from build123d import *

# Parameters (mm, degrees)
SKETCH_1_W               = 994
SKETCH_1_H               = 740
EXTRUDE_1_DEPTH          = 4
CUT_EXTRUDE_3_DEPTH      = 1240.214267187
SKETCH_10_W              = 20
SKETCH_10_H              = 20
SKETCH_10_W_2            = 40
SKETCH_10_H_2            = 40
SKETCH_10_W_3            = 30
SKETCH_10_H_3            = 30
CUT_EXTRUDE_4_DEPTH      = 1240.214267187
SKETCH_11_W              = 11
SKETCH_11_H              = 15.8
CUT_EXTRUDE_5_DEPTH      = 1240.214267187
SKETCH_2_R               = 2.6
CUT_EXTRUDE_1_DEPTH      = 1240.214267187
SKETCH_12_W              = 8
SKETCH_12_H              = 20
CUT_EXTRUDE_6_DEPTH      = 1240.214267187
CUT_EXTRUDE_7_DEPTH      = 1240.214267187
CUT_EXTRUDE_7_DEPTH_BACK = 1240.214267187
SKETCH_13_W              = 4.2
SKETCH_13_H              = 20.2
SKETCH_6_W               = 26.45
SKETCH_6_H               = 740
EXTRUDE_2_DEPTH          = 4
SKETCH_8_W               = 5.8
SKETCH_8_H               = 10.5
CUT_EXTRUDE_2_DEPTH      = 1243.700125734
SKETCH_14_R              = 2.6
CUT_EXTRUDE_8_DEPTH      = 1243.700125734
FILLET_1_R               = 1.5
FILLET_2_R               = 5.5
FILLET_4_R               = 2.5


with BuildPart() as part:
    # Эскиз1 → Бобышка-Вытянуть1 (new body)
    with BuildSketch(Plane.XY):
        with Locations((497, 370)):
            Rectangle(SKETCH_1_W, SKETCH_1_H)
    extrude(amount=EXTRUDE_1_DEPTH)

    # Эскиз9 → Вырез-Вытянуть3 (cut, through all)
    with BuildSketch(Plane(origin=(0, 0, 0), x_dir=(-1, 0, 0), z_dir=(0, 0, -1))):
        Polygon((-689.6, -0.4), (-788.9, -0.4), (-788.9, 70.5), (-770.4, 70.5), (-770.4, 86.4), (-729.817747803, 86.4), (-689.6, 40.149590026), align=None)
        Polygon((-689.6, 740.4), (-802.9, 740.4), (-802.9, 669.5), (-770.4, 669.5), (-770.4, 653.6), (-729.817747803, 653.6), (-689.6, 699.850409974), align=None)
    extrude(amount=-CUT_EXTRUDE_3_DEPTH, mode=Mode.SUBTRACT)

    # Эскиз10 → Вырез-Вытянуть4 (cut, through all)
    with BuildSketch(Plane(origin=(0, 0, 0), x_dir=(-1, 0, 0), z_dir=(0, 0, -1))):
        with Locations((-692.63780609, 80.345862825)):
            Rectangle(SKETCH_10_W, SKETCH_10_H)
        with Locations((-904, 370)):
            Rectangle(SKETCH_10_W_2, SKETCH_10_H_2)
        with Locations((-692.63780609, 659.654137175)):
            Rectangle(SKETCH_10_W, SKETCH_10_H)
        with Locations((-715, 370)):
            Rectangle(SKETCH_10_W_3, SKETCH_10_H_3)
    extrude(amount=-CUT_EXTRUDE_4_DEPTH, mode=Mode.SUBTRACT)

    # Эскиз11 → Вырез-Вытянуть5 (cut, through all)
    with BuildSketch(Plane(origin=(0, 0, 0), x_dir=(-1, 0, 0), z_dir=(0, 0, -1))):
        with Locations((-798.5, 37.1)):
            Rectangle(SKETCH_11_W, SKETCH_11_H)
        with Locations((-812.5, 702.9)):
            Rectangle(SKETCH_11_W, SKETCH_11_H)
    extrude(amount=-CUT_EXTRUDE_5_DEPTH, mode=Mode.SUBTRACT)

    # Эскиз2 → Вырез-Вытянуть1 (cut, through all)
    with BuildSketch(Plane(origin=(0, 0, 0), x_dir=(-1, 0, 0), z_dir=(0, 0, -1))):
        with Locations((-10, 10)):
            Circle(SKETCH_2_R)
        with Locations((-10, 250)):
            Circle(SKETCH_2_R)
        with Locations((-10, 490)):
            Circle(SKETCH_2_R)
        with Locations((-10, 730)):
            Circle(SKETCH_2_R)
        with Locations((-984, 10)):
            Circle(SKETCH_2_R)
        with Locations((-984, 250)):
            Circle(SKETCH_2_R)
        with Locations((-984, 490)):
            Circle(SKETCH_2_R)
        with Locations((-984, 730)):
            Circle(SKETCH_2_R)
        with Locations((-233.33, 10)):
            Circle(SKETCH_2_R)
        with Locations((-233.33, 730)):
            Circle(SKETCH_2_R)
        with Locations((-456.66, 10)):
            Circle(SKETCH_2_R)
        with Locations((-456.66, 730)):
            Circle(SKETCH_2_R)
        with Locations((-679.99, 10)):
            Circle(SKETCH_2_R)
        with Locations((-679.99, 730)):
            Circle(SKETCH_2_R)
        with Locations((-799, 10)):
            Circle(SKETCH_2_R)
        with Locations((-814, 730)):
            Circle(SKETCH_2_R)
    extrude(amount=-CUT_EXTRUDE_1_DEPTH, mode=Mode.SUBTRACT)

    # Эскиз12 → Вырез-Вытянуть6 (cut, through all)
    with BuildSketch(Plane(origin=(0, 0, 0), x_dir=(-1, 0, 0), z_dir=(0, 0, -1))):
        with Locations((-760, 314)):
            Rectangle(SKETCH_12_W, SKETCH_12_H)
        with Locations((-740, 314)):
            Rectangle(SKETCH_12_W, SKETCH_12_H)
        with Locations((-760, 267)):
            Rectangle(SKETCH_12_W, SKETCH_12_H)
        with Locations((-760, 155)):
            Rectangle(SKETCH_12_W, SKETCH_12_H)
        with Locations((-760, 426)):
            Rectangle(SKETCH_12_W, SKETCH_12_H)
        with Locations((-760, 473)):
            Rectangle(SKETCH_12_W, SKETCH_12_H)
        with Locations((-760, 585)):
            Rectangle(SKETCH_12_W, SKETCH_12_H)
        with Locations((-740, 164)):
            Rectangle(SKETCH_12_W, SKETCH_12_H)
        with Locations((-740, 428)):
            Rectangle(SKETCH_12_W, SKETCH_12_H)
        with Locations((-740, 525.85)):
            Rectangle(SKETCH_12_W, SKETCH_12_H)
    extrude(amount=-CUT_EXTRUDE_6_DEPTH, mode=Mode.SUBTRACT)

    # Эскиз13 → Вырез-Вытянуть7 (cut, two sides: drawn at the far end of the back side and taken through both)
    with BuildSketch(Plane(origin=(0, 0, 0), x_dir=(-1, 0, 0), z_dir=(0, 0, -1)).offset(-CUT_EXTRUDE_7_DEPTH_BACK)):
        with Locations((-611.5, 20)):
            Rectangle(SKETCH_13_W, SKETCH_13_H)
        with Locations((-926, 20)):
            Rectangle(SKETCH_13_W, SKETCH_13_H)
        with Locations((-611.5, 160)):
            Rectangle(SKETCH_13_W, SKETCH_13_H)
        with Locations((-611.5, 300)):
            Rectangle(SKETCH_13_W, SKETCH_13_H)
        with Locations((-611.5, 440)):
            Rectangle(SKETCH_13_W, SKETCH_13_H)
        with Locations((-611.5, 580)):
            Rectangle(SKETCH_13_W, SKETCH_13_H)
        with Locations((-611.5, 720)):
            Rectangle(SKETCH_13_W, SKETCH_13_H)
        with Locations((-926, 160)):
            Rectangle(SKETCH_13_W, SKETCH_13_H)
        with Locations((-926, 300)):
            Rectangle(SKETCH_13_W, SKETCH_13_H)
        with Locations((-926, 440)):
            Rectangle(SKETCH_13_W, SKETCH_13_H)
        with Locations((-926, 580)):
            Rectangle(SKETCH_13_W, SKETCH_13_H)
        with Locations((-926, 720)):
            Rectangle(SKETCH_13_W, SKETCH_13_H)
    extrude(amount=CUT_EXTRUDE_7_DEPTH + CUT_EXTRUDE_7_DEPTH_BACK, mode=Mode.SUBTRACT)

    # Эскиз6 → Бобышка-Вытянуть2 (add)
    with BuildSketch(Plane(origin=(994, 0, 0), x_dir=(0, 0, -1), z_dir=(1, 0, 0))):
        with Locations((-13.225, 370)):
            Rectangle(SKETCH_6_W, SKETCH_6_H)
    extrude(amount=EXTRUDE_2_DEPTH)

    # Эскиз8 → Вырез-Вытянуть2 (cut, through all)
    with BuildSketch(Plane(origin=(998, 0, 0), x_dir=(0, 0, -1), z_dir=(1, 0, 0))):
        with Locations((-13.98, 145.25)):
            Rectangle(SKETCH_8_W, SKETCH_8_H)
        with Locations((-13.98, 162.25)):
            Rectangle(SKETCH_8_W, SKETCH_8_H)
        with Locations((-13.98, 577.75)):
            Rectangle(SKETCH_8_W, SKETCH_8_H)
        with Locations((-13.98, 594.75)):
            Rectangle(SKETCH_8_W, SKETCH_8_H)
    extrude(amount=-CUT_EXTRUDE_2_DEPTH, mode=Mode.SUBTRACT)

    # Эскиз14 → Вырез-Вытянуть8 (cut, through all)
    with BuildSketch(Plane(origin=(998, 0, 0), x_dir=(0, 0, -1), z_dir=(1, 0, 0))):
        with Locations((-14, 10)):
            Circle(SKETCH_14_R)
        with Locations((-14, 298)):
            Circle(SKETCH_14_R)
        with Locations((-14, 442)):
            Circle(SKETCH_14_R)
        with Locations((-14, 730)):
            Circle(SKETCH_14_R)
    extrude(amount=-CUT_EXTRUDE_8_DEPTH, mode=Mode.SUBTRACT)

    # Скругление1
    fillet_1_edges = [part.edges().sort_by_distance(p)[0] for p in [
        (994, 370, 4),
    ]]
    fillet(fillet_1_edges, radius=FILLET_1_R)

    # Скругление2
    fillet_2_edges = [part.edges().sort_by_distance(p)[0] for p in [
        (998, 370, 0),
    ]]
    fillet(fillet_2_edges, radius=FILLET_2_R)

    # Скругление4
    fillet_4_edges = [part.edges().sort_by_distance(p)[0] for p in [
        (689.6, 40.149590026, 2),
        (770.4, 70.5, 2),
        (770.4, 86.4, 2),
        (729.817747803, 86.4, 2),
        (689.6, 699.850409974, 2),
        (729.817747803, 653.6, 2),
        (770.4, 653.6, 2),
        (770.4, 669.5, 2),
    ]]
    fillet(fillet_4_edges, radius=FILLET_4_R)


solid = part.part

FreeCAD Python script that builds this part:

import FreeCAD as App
import Part
import Sketcher
Q = App.Units.Quantity


def edges_at(feature, points):
    """Names of the edges that pass closest to the given points."""
    edges = feature.Shape.Edges
    near = lambda p: min(range(len(edges)), key=lambda i: edges[i].distToShape(Part.Vertex(*p))[0])
    return sorted({f"Edge{near(p) + 1}" for p in points})

doc = App.newDocument("Part")
body = doc.addObject("PartDesign::Body", "Body")

sketch1 = body.newObject("Sketcher::SketchObject", "Sketch")
sketch1.AttachmentSupport = (doc.getObject("XY_Plane"), [""])
sketch1.MapMode = "FlatFace"
sketch1.addGeometry([
    Part.LineSegment(App.Vector(0, 740, 0), App.Vector(0, 0, 0)),
    Part.LineSegment(App.Vector(0, 0, 0), App.Vector(994, 0, 0)),
    Part.LineSegment(App.Vector(994, 0, 0), App.Vector(994, 740, 0)),
    Part.LineSegment(App.Vector(994, 740, 0), App.Vector(0, 740, 0)),
], False)
sketch1.addConstraint([
    Sketcher.Constraint("Coincident", 0, 2, 1, 1),
    Sketcher.Constraint("Coincident", 1, 2, 2, 1),
    Sketcher.Constraint("Coincident", 2, 2, 3, 1),
    Sketcher.Constraint("Coincident", 3, 2, 0, 1),
    Sketcher.Constraint("Vertical", 0),
    Sketcher.Constraint("Horizontal", 1),
    Sketcher.Constraint("Vertical", 2),
    Sketcher.Constraint("Horizontal", 3),
    Sketcher.Constraint("Coincident", 0, 2, -1, 1),
    Sketcher.Constraint("DistanceX", 1, 1, 1, 2, Q("994 mm")),
    Sketcher.Constraint("DistanceY", 0, 2, 0, 1, Q("740 mm")),
])
pad1 = body.newObject("PartDesign::Pad", "Pad")
pad1.Profile = sketch1
pad1.Length = 4

sketch2 = body.newObject("Sketcher::SketchObject", "Sketch001")
sketch2.AttachmentSupport = (doc.getObject("XY_Plane"), [""])
sketch2.MapMode = "FlatFace"
sketch2.addGeometry([
    Part.LineSegment(App.Vector(789, 0, 0), App.Vector(690, 0, 0)),
    Part.LineSegment(App.Vector(690, 0, 0), App.Vector(690, 40, 0)),
    Part.LineSegment(App.Vector(690, 40, 0), App.Vector(730, 86, 0)),
    Part.LineSegment(App.Vector(730, 86, 0), App.Vector(770, 86, 0)),
    Part.LineSegment(App.Vector(770, 86, 0), App.Vector(770, 70, 0)),
    Part.LineSegment(App.Vector(770, 70, 0), App.Vector(789, 70, 0)),
    Part.LineSegment(App.Vector(789, 70, 0), App.Vector(789, 0, 0)),
    Part.LineSegment(App.Vector(690, 740, 0), App.Vector(803, 740, 0)),
    Part.LineSegment(App.Vector(803, 740, 0), App.Vector(803, 670, 0)),
    Part.LineSegment(App.Vector(803, 670, 0), App.Vector(770, 670, 0)),
    Part.LineSegment(App.Vector(770, 670, 0), App.Vector(770, 654, 0)),
    Part.LineSegment(App.Vector(770, 654, 0), App.Vector(730, 654, 0)),
    Part.LineSegment(App.Vector(730, 654, 0), App.Vector(690, 700, 0)),
    Part.LineSegment(App.Vector(690, 700, 0), App.Vector(690, 740, 0)),
], False)
sketch2.addConstraint([
    Sketcher.Constraint("Coincident", 0, 2, 1, 1),
    Sketcher.Constraint("Coincident", 1, 2, 2, 1),
    Sketcher.Constraint("Coincident", 2, 2, 3, 1),
    Sketcher.Constraint("Coincident", 3, 2, 4, 1),
    Sketcher.Constraint("Coincident", 4, 2, 5, 1),
    Sketcher.Constraint("Coincident", 5, 2, 6, 1),
    Sketcher.Constraint("Coincident", 6, 2, 0, 1),
    Sketcher.Constraint("Coincident", 7, 2, 8, 1),
    Sketcher.Constraint("Coincident", 8, 2, 9, 1),
    Sketcher.Constraint("Coincident", 9, 2, 10, 1),
    Sketcher.Constraint("Coincident", 10, 2, 11, 1),
    Sketcher.Constraint("Coincident", 11, 2, 12, 1),
    Sketcher.Constraint("Coincident", 12, 2, 13, 1),
    Sketcher.Constraint("Coincident", 13, 2, 7, 1),
    Sketcher.Constraint("Horizontal", 0),
    Sketcher.Constraint("Vertical", 1),
    Sketcher.Constraint("Horizontal", 3),
    Sketcher.Constraint("Vertical", 4),
    Sketcher.Constraint("Horizontal", 5),
    Sketcher.Constraint("Vertical", 6),
    Sketcher.Constraint("Horizontal", 7),
    Sketcher.Constraint("Vertical", 8),
    Sketcher.Constraint("Horizontal", 9),
    Sketcher.Constraint("Vertical", 10),
    Sketcher.Constraint("Horizontal", 11),
    Sketcher.Constraint("Vertical", 13),
    Sketcher.Constraint("Vertical", 4, 2, 9, 2),
    Sketcher.Constraint("Vertical", 2, 2, 11, 2),
    Sketcher.Constraint("Vertical", 1, 2, 12, 2),
    Sketcher.Constraint("Equal", 6, 8),
    Sketcher.Constraint("Equal", 4, 10),
    Sketcher.Constraint("Equal", 1, 13),
    Sketcher.Constraint("DistanceX", 0, 2, 0, 1, Q("99.3 mm")),
    Sketcher.Constraint("DistanceX", 5, 1, 5, 2, Q("18.5 mm")),
    Sketcher.Constraint("DistanceX", 7, 1, 7, 2, Q("113.3 mm")),
    Sketcher.Constraint("DistanceY", 4, 2, 4, 1, Q("15.9 mm")),
    Sketcher.Constraint("DistanceY", 6, 2, 6, 1, Q("70.9 mm")),
    Sketcher.Constraint("DistanceY", 3, 2, 7, 2, Q("654 mm")),
    Sketcher.Constraint("DistanceX", -1, 1, 0, 2, Q("689.6 mm")),
    Sketcher.Constraint("DistanceY", 0, 2, -1, 1, Q("0.4 mm")),
    Sketcher.Constraint("DistanceY", 1, 1, 1, 2, Q("40.54959 mm")),
    Sketcher.Constraint("DistanceX", 3, 1, 3, 2, Q("40.582252 mm")),
])
pocket1 = body.newObject("PartDesign::Pocket", "Pocket")
pocket1.Profile = sketch2
pocket1.Type = "ThroughAll"
pocket1.Reversed = True

sketch3 = body.newObject("Sketcher::SketchObject", "Sketch002")
sketch3.AttachmentSupport = (doc.getObject("XY_Plane"), [""])
sketch3.MapMode = "FlatFace"
sketch3.addGeometry([
    Part.LineSegment(App.Vector(703, 90, 0), App.Vector(703, 70, 0)),
    Part.LineSegment(App.Vector(703, 70, 0), App.Vector(683, 70, 0)),
    Part.LineSegment(App.Vector(683, 70, 0), App.Vector(683, 90, 0)),
    Part.LineSegment(App.Vector(683, 90, 0), App.Vector(703, 90, 0)),
    Part.LineSegment(App.Vector(924, 390, 0), App.Vector(924, 350, 0)),
    Part.LineSegment(App.Vector(924, 350, 0), App.Vector(884, 350, 0)),
    Part.LineSegment(App.Vector(884, 350, 0), App.Vector(884, 390, 0)),
    Part.LineSegment(App.Vector(884, 390, 0), App.Vector(924, 390, 0)),
    Part.LineSegment(App.Vector(703, 670, 0), App.Vector(703, 650, 0)),
    Part.LineSegment(App.Vector(703, 650, 0), App.Vector(683, 650, 0)),
    Part.LineSegment(App.Vector(683, 650, 0), App.Vector(683, 670, 0)),
    Part.LineSegment(App.Vector(683, 670, 0), App.Vector(703, 670, 0)),
    Part.LineSegment(App.Vector(730, 385, 0), App.Vector(730, 355, 0)),
    Part.LineSegment(App.Vector(730, 355, 0), App.Vector(700, 355, 0)),
    Part.LineSegment(App.Vector(700, 355, 0), App.Vector(700, 385, 0)),
    Part.LineSegment(App.Vector(700, 385, 0), App.Vector(730, 385, 0)),
], False)
sketch3.addConstraint([
    Sketcher.Constraint("Coincident", 0, 2, 1, 1),
    Sketcher.Constraint("Coincident", 1, 2, 2, 1),
    Sketcher.Constraint("Coincident", 2, 2, 3, 1),
    Sketcher.Constraint("Coincident", 3, 2, 0, 1),
    Sketcher.Constraint("Coincident", 4, 2, 5, 1),
    Sketcher.Constraint("Coincident", 5, 2, 6, 1),
    Sketcher.Constraint("Coincident", 6, 2, 7, 1),
    Sketcher.Constraint("Coincident", 7, 2, 4, 1),
    Sketcher.Constraint("Coincident", 8, 2, 9, 1),
    Sketcher.Constraint("Coincident", 9, 2, 10, 1),
    Sketcher.Constraint("Coincident", 10, 2, 11, 1),
    Sketcher.Constraint("Coincident", 11, 2, 8, 1),
    Sketcher.Constraint("Coincident", 12, 2, 13, 1),
    Sketcher.Constraint("Coincident", 13, 2, 14, 1),
    Sketcher.Constraint("Coincident", 14, 2, 15, 1),
    Sketcher.Constraint("Coincident", 15, 2, 12, 1),
    Sketcher.Constraint("Vertical", 0),
    Sketcher.Constraint("Horizontal", 1),
    Sketcher.Constraint("Vertical", 2),
    Sketcher.Constraint("Horizontal", 3),
    Sketcher.Constraint("Vertical", 4),
    Sketcher.Constraint("Horizontal", 5),
    Sketcher.Constraint("Vertical", 6),
    Sketcher.Constraint("Horizontal", 7),
    Sketcher.Constraint("Vertical", 8),
    Sketcher.Constraint("Horizontal", 9),
    Sketcher.Constraint("Vertical", 10),
    Sketcher.Constraint("Horizontal", 11),
    Sketcher.Constraint("Vertical", 12),
    Sketcher.Constraint("Horizontal", 13),
    Sketcher.Constraint("Vertical", 14),
    Sketcher.Constraint("Horizontal", 15),
    Sketcher.Constraint("Vertical", 3, 2, 8, 2),
    Sketcher.Constraint("Vertical", 2, 2, 9, 2),
    Sketcher.Constraint("Equal", 11, 0),
    Sketcher.Constraint("Equal", 7, 4),
    Sketcher.Constraint("Equal", 2, 8),
    Sketcher.Constraint("Equal", 15, 12),
    Sketcher.Constraint("DistanceX", 1, 2, 1, 1, Q("20 mm")),
    Sketcher.Constraint("DistanceX", 5, 2, 5, 1, Q("40 mm")),
    Sketcher.Constraint("DistanceX", 13, 2, 13, 1, Q("30 mm")),
    Sketcher.Constraint("DistanceX", -1, 1, 4, 2, Q("924 mm")),
    Sketcher.Constraint("DistanceY", -1, 1, 4, 2, Q("350 mm")),
    Sketcher.Constraint("DistanceX", -1, 1, 12, 2, Q("730 mm")),
    Sketcher.Constraint("DistanceY", -1, 1, 12, 2, Q("355 mm")),
    Sketcher.Constraint("DistanceX", -1, 1, 0, 2, Q("702.637806 mm")),
    Sketcher.Constraint("DistanceY", -1, 1, 0, 2, Q("70.345863 mm")),
    Sketcher.Constraint("DistanceY", -1, 1, 8, 2, Q("649.654137 mm")),
])
pocket2 = body.newObject("PartDesign::Pocket", "Pocket001")
pocket2.Profile = sketch3
pocket2.Type = "ThroughAll"
pocket2.Reversed = True

sketch4 = body.newObject("Sketcher::SketchObject", "Sketch003")
sketch4.AttachmentSupport = (doc.getObject("XY_Plane"), [""])
sketch4.MapMode = "FlatFace"
sketch4.addGeometry([
    Part.LineSegment(App.Vector(804, 45, 0), App.Vector(804, 29, 0)),
    Part.LineSegment(App.Vector(804, 29, 0), App.Vector(793, 29, 0)),
    Part.LineSegment(App.Vector(793, 29, 0), App.Vector(793, 45, 0)),
    Part.LineSegment(App.Vector(793, 45, 0), App.Vector(804, 45, 0)),
    Part.LineSegment(App.Vector(818, 711, 0), App.Vector(818, 695, 0)),
    Part.LineSegment(App.Vector(818, 695, 0), App.Vector(807, 695, 0)),
    Part.LineSegment(App.Vector(807, 695, 0), App.Vector(807, 711, 0)),
    Part.LineSegment(App.Vector(807, 711, 0), App.Vector(818, 711, 0)),
], False)
sketch4.addConstraint([
    Sketcher.Constraint("Coincident", 0, 2, 1, 1),
    Sketcher.Constraint("Coincident", 1, 2, 2, 1),
    Sketcher.Constraint("Coincident", 2, 2, 3, 1),
    Sketcher.Constraint("Coincident", 3, 2, 0, 1),
    Sketcher.Constraint("Coincident", 4, 2, 5, 1),
    Sketcher.Constraint("Coincident", 5, 2, 6, 1),
    Sketcher.Constraint("Coincident", 6, 2, 7, 1),
    Sketcher.Constraint("Coincident", 7, 2, 4, 1),
    Sketcher.Constraint("Vertical", 0),
    Sketcher.Constraint("Horizontal", 1),
    Sketcher.Constraint("Vertical", 2),
    Sketcher.Constraint("Horizontal", 3),
    Sketcher.Constraint("Vertical", 4),
    Sketcher.Constraint("Horizontal", 5),
    Sketcher.Constraint("Vertical", 6),
    Sketcher.Constraint("Horizontal", 7),
    Sketcher.Constraint("Equal", 3, 5),
    Sketcher.Constraint("Equal", 2, 4),
    Sketcher.Constraint("DistanceX", 1, 2, 1, 1, Q("11 mm")),
    Sketcher.Constraint("DistanceY", 0, 2, 0, 1, Q("15.8 mm")),
    Sketcher.Constraint("DistanceX", -1, 1, 0, 2, Q("804 mm")),
    Sketcher.Constraint("DistanceY", -1, 1, 2, 2, Q("45 mm")),
    Sketcher.Constraint("DistanceX", -1, 1, 4, 2, Q("818 mm")),
    Sketcher.Constraint("DistanceY", -1, 1, 4, 2, Q("695 mm")),
])
pocket3 = body.newObject("PartDesign::Pocket", "Pocket002")
pocket3.Profile = sketch4
pocket3.Type = "ThroughAll"
pocket3.Reversed = True

sketch5 = body.newObject("Sketcher::SketchObject", "Sketch004")
sketch5.AttachmentSupport = (doc.getObject("XY_Plane"), [""])
sketch5.MapMode = "FlatFace"
sketch5.addGeometry([
    Part.Circle(App.Vector(10, 10, 0), App.Vector(0, 0, 1), 2.6),
    Part.Circle(App.Vector(10, 250, 0), App.Vector(0, 0, 1), 2.6),
    Part.Circle(App.Vector(10, 490, 0), App.Vector(0, 0, 1), 2.6),
    Part.Circle(App.Vector(10, 730, 0), App.Vector(0, 0, 1), 2.6),
    Part.Circle(App.Vector(984, 10, 0), App.Vector(0, 0, 1), 2.6),
    Part.Circle(App.Vector(984, 250, 0), App.Vector(0, 0, 1), 2.6),
    Part.Circle(App.Vector(984, 490, 0), App.Vector(0, 0, 1), 2.6),
    Part.Circle(App.Vector(984, 730, 0), App.Vector(0, 0, 1), 2.6),
    Part.Circle(App.Vector(233.3, 10, 0), App.Vector(0, 0, 1), 2.6),
    Part.Circle(App.Vector(233.3, 730, 0), App.Vector(0, 0, 1), 2.6),
    Part.Circle(App.Vector(456.7, 10, 0), App.Vector(0, 0, 1), 2.6),
    Part.Circle(App.Vector(456.7, 730, 0), App.Vector(0, 0, 1), 2.6),
    Part.Circle(App.Vector(680, 10, 0), App.Vector(0, 0, 1), 2.6),
    Part.Circle(App.Vector(680, 730, 0), App.Vector(0, 0, 1), 2.6),
    Part.Circle(App.Vector(799, 10, 0), App.Vector(0, 0, 1), 2.6),
    Part.Circle(App.Vector(814, 730, 0), App.Vector(0, 0, 1), 2.6),
], False)
sketch5.addConstraint([
    Sketcher.Constraint("Equal", 0, 1),
    Sketcher.Constraint("Equal", 1, 2),
    Sketcher.Constraint("Equal", 2, 3),
    Sketcher.Constraint("Equal", 3, 4),
    Sketcher.Constraint("Equal", 4, 5),
    Sketcher.Constraint("Equal", 5, 6),
    Sketcher.Constraint("Equal", 6, 7),
    Sketcher.Constraint("Equal", 7, 8),
    Sketcher.Constraint("Equal", 8, 9),
    Sketcher.Constraint("Equal", 9, 10),
    Sketcher.Constraint("Equal", 10, 11),
    Sketcher.Constraint("Equal", 11, 12),
    Sketcher.Constraint("Equal", 12, 13),
    Sketcher.Constraint("Equal", 13, 14),
    Sketcher.Constraint("Equal", 14, 15),
    Sketcher.Constraint("Horizontal", 0, 3, 4, 3),
    Sketcher.Constraint("Horizontal", 1, 3, 5, 3),
    Sketcher.Constraint("Horizontal", 2, 3, 6, 3),
    Sketcher.Constraint("Horizontal", 3, 3, 7, 3),
    Sketcher.Constraint("Horizontal", 4, 3, 8, 3),
    Sketcher.Constraint("Horizontal", 7, 3, 9, 3),
    Sketcher.Constraint("Horizontal", 8, 3, 10, 3),
    Sketcher.Constraint("Horizontal", 9, 3, 11, 3),
    Sketcher.Constraint("Horizontal", 10, 3, 12, 3),
    Sketcher.Constraint("Horizontal", 11, 3, 13, 3),
    Sketcher.Constraint("Horizontal", 12, 3, 14, 3),
    Sketcher.Constraint("Horizontal", 13, 3, 15, 3),
    Sketcher.Constraint("Vertical", 0, 3, 1, 3),
    Sketcher.Constraint("Vertical", 1, 3, 2, 3),
    Sketcher.Constraint("Vertical", 2, 3, 3, 3),
    Sketcher.Constraint("Vertical", 4, 3, 5, 3),
    Sketcher.Constraint("Vertical", 5, 3, 6, 3),
    Sketcher.Constraint("Vertical", 6, 3, 7, 3),
    Sketcher.Constraint("Vertical", 8, 3, 9, 3),
    Sketcher.Constraint("Vertical", 10, 3, 11, 3),
    Sketcher.Constraint("Vertical", 12, 3, 13, 3),
    Sketcher.Constraint("Diameter", 0, Q("5.2 mm")),
    Sketcher.Constraint("DistanceX", -1, 1, 0, 3, Q("10 mm")),
    Sketcher.Constraint("DistanceY", -1, 1, 0, 3, Q("10 mm")),
    Sketcher.Constraint("DistanceY", -1, 1, 1, 3, Q("250 mm")),
    Sketcher.Constraint("DistanceY", -1, 1, 2, 3, Q("490 mm")),
    Sketcher.Constraint("DistanceY", -1, 1, 3, 3, Q("730 mm")),
    Sketcher.Constraint("DistanceX", -1, 1, 4, 3, Q("984 mm")),
    Sketcher.Constraint("DistanceX", -1, 1, 14, 3, Q("799 mm")),
    Sketcher.Constraint("DistanceX", -1, 1, 15, 3, Q("814 mm")),
    Sketcher.Constraint("DistanceX", -1, 1, 8, 3, Q("233.33 mm")),
    Sketcher.Constraint("DistanceX", -1, 1, 10, 3, Q("456.66 mm")),
    Sketcher.Constraint("DistanceX", -1, 1, 12, 3, Q("679.99 mm")),
])
pocket4 = body.newObject("PartDesign::Pocket", "Pocket003")
pocket4.Profile = sketch5
pocket4.Type = "ThroughAll"
pocket4.Reversed = True

sketch6 = body.newObject("Sketcher::SketchObject", "Sketch005")
sketch6.AttachmentSupport = (doc.getObject("XY_Plane"), [""])
sketch6.MapMode = "FlatFace"
sketch6.addGeometry([
    Part.LineSegment(App.Vector(764, 324, 0), App.Vector(764, 304, 0)),
    Part.LineSegment(App.Vector(764, 304, 0), App.Vector(756, 304, 0)),
    Part.LineSegment(App.Vector(756, 304, 0), App.Vector(756, 324, 0)),
    Part.LineSegment(App.Vector(756, 324, 0), App.Vector(764, 324, 0)),
    Part.LineSegment(App.Vector(744, 324, 0), App.Vector(744, 304, 0)),
    Part.LineSegment(App.Vector(744, 304, 0), App.Vector(736, 304, 0)),
    Part.LineSegment(App.Vector(736, 304, 0), App.Vector(736, 324, 0)),
    Part.LineSegment(App.Vector(736, 324, 0), App.Vector(744, 324, 0)),
    Part.LineSegment(App.Vector(764, 277, 0), App.Vector(764, 257, 0)),
    Part.LineSegment(App.Vector(764, 257, 0), App.Vector(756, 257, 0)),
    Part.LineSegment(App.Vector(756, 257, 0), App.Vector(756, 277, 0)),
    Part.LineSegment(App.Vector(756, 277, 0), App.Vector(764, 277, 0)),
    Part.LineSegment(App.Vector(764, 165, 0), App.Vector(764, 145, 0)),
    Part.LineSegment(App.Vector(764, 145, 0), App.Vector(756, 145, 0)),
    Part.LineSegment(App.Vector(756, 145, 0), App.Vector(756, 165, 0)),
    Part.LineSegment(App.Vector(756, 165, 0), App.Vector(764, 165, 0)),
    Part.LineSegment(App.Vector(764, 436, 0), App.Vector(764, 416, 0)),
    Part.LineSegment(App.Vector(764, 416, 0), App.Vector(756, 416, 0)),
    Part.LineSegment(App.Vector(756, 416, 0), App.Vector(756, 436, 0)),
    Part.LineSegment(App.Vector(756, 436, 0), App.Vector(764, 436, 0)),
    Part.LineSegment(App.Vector(764, 483, 0), App.Vector(764, 463, 0)),
    Part.LineSegment(App.Vector(764, 463, 0), App.Vector(756, 463, 0)),
    Part.LineSegment(App.Vector(756, 463, 0), App.Vector(756, 483, 0)),
    Part.LineSegment(App.Vector(756, 483, 0), App.Vector(764, 483, 0)),
    Part.LineSegment(App.Vector(764, 595, 0), App.Vector(764, 575, 0)),
    Part.LineSegment(App.Vector(764, 575, 0), App.Vector(756, 575, 0)),
    Part.LineSegment(App.Vector(756, 575, 0), App.Vector(756, 595, 0)),
    Part.LineSegment(App.Vector(756, 595, 0), App.Vector(764, 595, 0)),
    Part.LineSegment(App.Vector(744, 174, 0), App.Vector(744, 154, 0)),
    Part.LineSegment(App.Vector(744, 154, 0), App.Vector(736, 154, 0)),
    Part.LineSegment(App.Vector(736, 154, 0), App.Vector(736, 174, 0)),
    Part.LineSegment(App.Vector(736, 174, 0), App.Vector(744, 174, 0)),
    Part.LineSegment(App.Vector(744, 438, 0), App.Vector(744, 418, 0)),
    Part.LineSegment(App.Vector(744, 418, 0), App.Vector(736, 418, 0)),
    Part.LineSegment(App.Vector(736, 418, 0), App.Vector(736, 438, 0)),
    Part.LineSegment(App.Vector(736, 438, 0), App.Vector(744, 438, 0)),
    Part.LineSegment(App.Vector(744, 536, 0), App.Vector(744, 516, 0)),
    Part.LineSegment(App.Vector(744, 516, 0), App.Vector(736, 516, 0)),
    Part.LineSegment(App.Vector(736, 516, 0), App.Vector(736, 536, 0)),
    Part.LineSegment(App.Vector(736, 536, 0), App.Vector(744, 536, 0)),
], False)
sketch6.addConstraint([
    Sketcher.Constraint("Coincident", 0, 2, 1, 1),
    Sketcher.Constraint("Coincident", 1, 2, 2, 1),
    Sketcher.Constraint("Coincident", 2, 2, 3, 1),
    Sketcher.Constraint("Coincident", 3, 2, 0, 1),
    Sketcher.Constraint("Coincident", 4, 2, 5, 1),
    Sketcher.Constraint("Coincident", 5, 2, 6, 1),
    Sketcher.Constraint("Coincident", 6, 2, 7, 1),
    Sketcher.Constraint("Coincident", 7, 2, 4, 1),
    Sketcher.Constraint("Coincident", 8, 2, 9, 1),
    Sketcher.Constraint("Coincident", 9, 2, 10, 1),
    Sketcher.Constraint("Coincident", 10, 2, 11, 1),
    Sketcher.Constraint("Coincident", 11, 2, 8, 1),
    Sketcher.Constraint("Coincident", 12, 2, 13, 1),
    Sketcher.Constraint("Coincident", 13, 2, 14, 1),
    Sketcher.Constraint("Coincident", 14, 2, 15, 1),
    Sketcher.Constraint("Coincident", 15, 2, 12, 1),
    Sketcher.Constraint("Coincident", 16, 2, 17, 1),
    Sketcher.Constraint("Coincident", 17, 2, 18, 1),
    Sketcher.Constraint("Coincident", 18, 2, 19, 1),
    Sketcher.Constraint("Coincident", 19, 2, 16, 1),
    Sketcher.Constraint("Coincident", 20, 2, 21, 1),
    Sketcher.Constraint("Coincident", 21, 2, 22, 1),
    Sketcher.Constraint("Coincident", 22, 2, 23, 1),
    Sketcher.Constraint("Coincident", 23, 2, 20, 1),
    Sketcher.Constraint("Coincident", 24, 2, 25, 1),
    Sketcher.Constraint("Coincident", 25, 2, 26, 1),
    Sketcher.Constraint("Coincident", 26, 2, 27, 1),
    Sketcher.Constraint("Coincident", 27, 2, 24, 1),
    Sketcher.Constraint("Coincident", 28, 2, 29, 1),
    Sketcher.Constraint("Coincident", 29, 2, 30, 1),
    Sketcher.Constraint("Coincident", 30, 2, 31, 1),
    Sketcher.Constraint("Coincident", 31, 2, 28, 1),
    Sketcher.Constraint("Coincident", 32, 2, 33, 1),
    Sketcher.Constraint("Coincident", 33, 2, 34, 1),
    Sketcher.Constraint("Coincident", 34, 2, 35, 1),
    Sketcher.Constraint("Coincident", 35, 2, 32, 1),
    Sketcher.Constraint("Coincident", 36, 2, 37, 1),
    Sketcher.Constraint("Coincident", 37, 2, 38, 1),
    Sketcher.Constraint("Coincident", 38, 2, 39, 1),
    Sketcher.Constraint("Coincident", 39, 2, 36, 1),
    Sketcher.Constraint("Vertical", 0),
    Sketcher.Constraint("Horizontal", 1),
    Sketcher.Constraint("Vertical", 2),
    Sketcher.Constraint("Horizontal", 3),
    Sketcher.Constraint("Vertical", 4),
    Sketcher.Constraint("Horizontal", 5),
    Sketcher.Constraint("Vertical", 6),
    Sketcher.Constraint("Horizontal", 7),
    Sketcher.Constraint("Vertical", 8),
    Sketcher.Constraint("Horizontal", 9),
    Sketcher.Constraint("Vertical", 10),
    Sketcher.Constraint("Horizontal", 11),
    Sketcher.Constraint("Vertical", 12),
    Sketcher.Constraint("Horizontal", 13),
    Sketcher.Constraint("Vertical", 14),
    Sketcher.Constraint("Horizontal", 15),
    Sketcher.Constraint("Vertical", 16),
    Sketcher.Constraint("Horizontal", 17),
    Sketcher.Constraint("Vertical", 18),
    Sketcher.Constraint("Horizontal", 19),
    Sketcher.Constraint("Vertical", 20),
    Sketcher.Constraint("Horizontal", 21),
    Sketcher.Constraint("Vertical", 22),
    Sketcher.Constraint("Horizontal", 23),
    Sketcher.Constraint("Vertical", 24),
    Sketcher.Constraint("Horizontal", 25),
    Sketcher.Constraint("Vertical", 26),
    Sketcher.Constraint("Horizontal", 27),
    Sketcher.Constraint("Vertical", 28),
    Sketcher.Constraint("Horizontal", 29),
    Sketcher.Constraint("Vertical", 30),
    Sketcher.Constraint("Horizontal", 31),
    Sketcher.Constraint("Vertical", 32),
    Sketcher.Constraint("Horizontal", 33),
    Sketcher.Constraint("Vertical", 34),
    Sketcher.Constraint("Horizontal", 35),
    Sketcher.Constraint("Vertical", 36),
    Sketcher.Constraint("Horizontal", 37),
    Sketcher.Constraint("Vertical", 38),
    Sketcher.Constraint("Horizontal", 39),
    Sketcher.Constraint("Horizontal", 1, 2, 4, 2),
    Sketcher.Constraint("Horizontal", 3, 2, 6, 2),
    Sketcher.Constraint("Vertical", 3, 2, 8, 2),
    Sketcher.Constraint("Vertical", 2, 2, 9, 2),
    Sketcher.Constraint("Vertical", 11, 2, 12, 2),
    Sketcher.Constraint("Vertical", 10, 2, 13, 2),
    Sketcher.Constraint("Vertical", 15, 2, 16, 2),
    Sketcher.Constraint("Vertical", 14, 2, 17, 2),
    Sketcher.Constraint("Vertical", 19, 2, 20, 2),
    Sketcher.Constraint("Vertical", 18, 2, 21, 2),
    Sketcher.Constraint("Vertical", 23, 2, 24, 2),
    Sketcher.Constraint("Vertical", 22, 2, 25, 2),
    Sketcher.Constraint("Vertical", 7, 2, 28, 2),
    Sketcher.Constraint("Vertical", 6, 2, 29, 2),
    Sketcher.Constraint("Vertical", 31, 2, 32, 2),
    Sketcher.Constraint("Vertical", 30, 2, 33, 2),
    Sketcher.Constraint("Vertical", 35, 2, 36, 2),
    Sketcher.Constraint("Vertical", 34, 2, 37, 2),
    Sketcher.Constraint("Equal", 3, 5),
    Sketcher.Constraint("Equal", 6, 8),
    Sketcher.Constraint("Equal", 10, 12),
    Sketcher.Constraint("Equal", 14, 16),
    Sketcher.Constraint("Equal", 18, 20),
    Sketcher.Constraint("Equal", 22, 24),
    Sketcher.Constraint("Equal", 26, 28),
    Sketcher.Constraint("Equal", 30, 32),
    Sketcher.Constraint("Equal", 34, 36),
    Sketcher.Constraint("DistanceX", 1, 2, 1, 1, Q("8 mm")),
    Sketcher.Constraint("DistanceY", 0, 2, 0, 1, Q("20 mm")),
    Sketcher.Constraint("DistanceX", -1, 1, 0, 2, Q("764 mm")),
    Sketcher.Constraint("DistanceY", -1, 1, 0, 2, Q("304 mm")),
    Sketcher.Constraint("DistanceX", -1, 1, 4, 2, Q("744 mm")),
    Sketcher.Constraint("DistanceY", -1, 1, 8, 2, Q("257 mm")),
    Sketcher.Constraint("DistanceY", -1, 1, 12, 2, Q("145 mm")),
    Sketcher.Constraint("DistanceY", -1, 1, 16, 2, Q("416 mm")),
    Sketcher.Constraint("DistanceY", -1, 1, 20, 2, Q("463 mm")),
    Sketcher.Constraint("DistanceY", -1, 1, 24, 2, Q("575 mm")),
    Sketcher.Constraint("DistanceY", -1, 1, 28, 2, Q("154 mm")),
    Sketcher.Constraint("DistanceY", -1, 1, 32, 2, Q("418 mm")),
    Sketcher.Constraint("DistanceY", -1, 1, 36, 2, Q("515.85 mm")),
])
pocket5 = body.newObject("PartDesign::Pocket", "Pocket004")
pocket5.Profile = sketch6
pocket5.Type = "ThroughAll"
pocket5.Reversed = True

sketch7 = body.newObject("Sketcher::SketchObject", "Sketch006")
sketch7.AttachmentSupport = (doc.getObject("XY_Plane"), [""])
sketch7.MapMode = "FlatFace"
sketch7.addGeometry([
    Part.LineSegment(App.Vector(613.6, 30.1, 0), App.Vector(613.6, 9.9, 0)),
    Part.LineSegment(App.Vector(613.6, 9.9, 0), App.Vector(609.4, 9.9, 0)),
    Part.LineSegment(App.Vector(609.4, 9.9, 0), App.Vector(609.4, 30.1, 0)),
    Part.LineSegment(App.Vector(609.4, 30.1, 0), App.Vector(613.6, 30.1, 0)),
    Part.LineSegment(App.Vector(928.1, 30.1, 0), App.Vector(928.1, 9.9, 0)),
    Part.LineSegment(App.Vector(928.1, 9.9, 0), App.Vector(923.9, 9.9, 0)),
    Part.LineSegment(App.Vector(923.9, 9.9, 0), App.Vector(923.9, 30.1, 0)),
    Part.LineSegment(App.Vector(923.9, 30.1, 0), App.Vector(928.1, 30.1, 0)),
    Part.LineSegment(App.Vector(613.6, 170.1, 0), App.Vector(613.6, 149.9, 0)),
    Part.LineSegment(App.Vector(613.6, 149.9, 0), App.Vector(609.4, 149.9, 0)),
    Part.LineSegment(App.Vector(609.4, 149.9, 0), App.Vector(609.4, 170.1, 0)),
    Part.LineSegment(App.Vector(609.4, 170.1, 0), App.Vector(613.6, 170.1, 0)),
    Part.LineSegment(App.Vector(613.6, 310.1, 0), App.Vector(613.6, 289.9, 0)),
    Part.LineSegment(App.Vector(613.6, 289.9, 0), App.Vector(609.4, 289.9, 0)),
    Part.LineSegment(App.Vector(609.4, 289.9, 0), App.Vector(609.4, 310.1, 0)),
    Part.LineSegment(App.Vector(609.4, 310.1, 0), App.Vector(613.6, 310.1, 0)),
    Part.LineSegment(App.Vector(613.6, 450.1, 0), App.Vector(613.6, 429.9, 0)),
    Part.LineSegment(App.Vector(613.6, 429.9, 0), App.Vector(609.4, 429.9, 0)),
    Part.LineSegment(App.Vector(609.4, 429.9, 0), App.Vector(609.4, 450.1, 0)),
    Part.LineSegment(App.Vector(609.4, 450.1, 0), App.Vector(613.6, 450.1, 0)),
    Part.LineSegment(App.Vector(613.6, 590.1, 0), App.Vector(613.6, 569.9, 0)),
    Part.LineSegment(App.Vector(613.6, 569.9, 0), App.Vector(609.4, 569.9, 0)),
    Part.LineSegment(App.Vector(609.4, 569.9, 0), App.Vector(609.4, 590.1, 0)),
    Part.LineSegment(App.Vector(609.4, 590.1, 0), App.Vector(613.6, 590.1, 0)),
    Part.LineSegment(App.Vector(613.6, 730.1, 0), App.Vector(613.6, 709.9, 0)),
    Part.LineSegment(App.Vector(613.6, 709.9, 0), App.Vector(609.4, 709.9, 0)),
    Part.LineSegment(App.Vector(609.4, 709.9, 0), App.Vector(609.4, 730.1, 0)),
    Part.LineSegment(App.Vector(609.4, 730.1, 0), App.Vector(613.6, 730.1, 0)),
    Part.LineSegment(App.Vector(928.1, 170.1, 0), App.Vector(928.1, 149.9, 0)),
    Part.LineSegment(App.Vector(928.1, 149.9, 0), App.Vector(923.9, 149.9, 0)),
    Part.LineSegment(App.Vector(923.9, 149.9, 0), App.Vector(923.9, 170.1, 0)),
    Part.LineSegment(App.Vector(923.9, 170.1, 0), App.Vector(928.1, 170.1, 0)),
    Part.LineSegment(App.Vector(928.1, 310.1, 0), App.Vector(928.1, 289.9, 0)),
    Part.LineSegment(App.Vector(928.1, 289.9, 0), App.Vector(923.9, 289.9, 0)),
    Part.LineSegment(App.Vector(923.9, 289.9, 0), App.Vector(923.9, 310.1, 0)),
    Part.LineSegment(App.Vector(923.9, 310.1, 0), App.Vector(928.1, 310.1, 0)),
    Part.LineSegment(App.Vector(928.1, 450.1, 0), App.Vector(928.1, 429.9, 0)),
    Part.LineSegment(App.Vector(928.1, 429.9, 0), App.Vector(923.9, 429.9, 0)),
    Part.LineSegment(App.Vector(923.9, 429.9, 0), App.Vector(923.9, 450.1, 0)),
    Part.LineSegment(App.Vector(923.9, 450.1, 0), App.Vector(928.1, 450.1, 0)),
    Part.LineSegment(App.Vector(928.1, 590.1, 0), App.Vector(928.1, 569.9, 0)),
    Part.LineSegment(App.Vector(928.1, 569.9, 0), App.Vector(923.9, 569.9, 0)),
    Part.LineSegment(App.Vector(923.9, 569.9, 0), App.Vector(923.9, 590.1, 0)),
    Part.LineSegment(App.Vector(923.9, 590.1, 0), App.Vector(928.1, 590.1, 0)),
    Part.LineSegment(App.Vector(928.1, 730.1, 0), App.Vector(928.1, 709.9, 0)),
    Part.LineSegment(App.Vector(928.1, 709.9, 0), App.Vector(923.9, 709.9, 0)),
    Part.LineSegment(App.Vector(923.9, 709.9, 0), App.Vector(923.9, 730.1, 0)),
    Part.LineSegment(App.Vector(923.9, 730.1, 0), App.Vector(928.1, 730.1, 0)),
], False)
sketch7.addConstraint([
    Sketcher.Constraint("Coincident", 0, 2, 1, 1),
    Sketcher.Constraint("Coincident", 1, 2, 2, 1),
    Sketcher.Constraint("Coincident", 2, 2, 3, 1),
    Sketcher.Constraint("Coincident", 3, 2, 0, 1),
    Sketcher.Constraint("Coincident", 4, 2, 5, 1),
    Sketcher.Constraint("Coincident", 5, 2, 6, 1),
    Sketcher.Constraint("Coincident", 6, 2, 7, 1),
    Sketcher.Constraint("Coincident", 7, 2, 4, 1),
    Sketcher.Constraint("Coincident", 8, 2, 9, 1),
    Sketcher.Constraint("Coincident", 9, 2, 10, 1),
    Sketcher.Constraint("Coincident", 10, 2, 11, 1),
    Sketcher.Constraint("Coincident", 11, 2, 8, 1),
    Sketcher.Constraint("Coincident", 12, 2, 13, 1),
    Sketcher.Constraint("Coincident", 13, 2, 14, 1),
    Sketcher.Constraint("Coincident", 14, 2, 15, 1),
    Sketcher.Constraint("Coincident", 15, 2, 12, 1),
    Sketcher.Constraint("Coincident", 16, 2, 17, 1),
    Sketcher.Constraint("Coincident", 17, 2, 18, 1),
    Sketcher.Constraint("Coincident", 18, 2, 19, 1),
    Sketcher.Constraint("Coincident", 19, 2, 16, 1),
    Sketcher.Constraint("Coincident", 20, 2, 21, 1),
    Sketcher.Constraint("Coincident", 21, 2, 22, 1),
    Sketcher.Constraint("Coincident", 22, 2, 23, 1),
    Sketcher.Constraint("Coincident", 23, 2, 20, 1),
    Sketcher.Constraint("Coincident", 24, 2, 25, 1),
    Sketcher.Constraint("Coincident", 25, 2, 26, 1),
    Sketcher.Constraint("Coincident", 26, 2, 27, 1),
    Sketcher.Constraint("Coincident", 27, 2, 24, 1),
    Sketcher.Constraint("Coincident", 28, 2, 29, 1),
    Sketcher.Constraint("Coincident", 29, 2, 30, 1),
    Sketcher.Constraint("Coincident", 30, 2, 31, 1),
    Sketcher.Constraint("Coincident", 31, 2, 28, 1),
    Sketcher.Constraint("Coincident", 32, 2, 33, 1),
    Sketcher.Constraint("Coincident", 33, 2, 34, 1),
    Sketcher.Constraint("Coincident", 34, 2, 35, 1),
    Sketcher.Constraint("Coincident", 35, 2, 32, 1),
    Sketcher.Constraint("Coincident", 36, 2, 37, 1),
    Sketcher.Constraint("Coincident", 37, 2, 38, 1),
    Sketcher.Constraint("Coincident", 38, 2, 39, 1),
    Sketcher.Constraint("Coincident", 39, 2, 36, 1),
    Sketcher.Constraint("Coincident", 40, 2, 41, 1),
    Sketcher.Constraint("Coincident", 41, 2, 42, 1),
    Sketcher.Constraint("Coincident", 42, 2, 43, 1),
    Sketcher.Constraint("Coincident", 43, 2, 40, 1),
    Sketcher.Constraint("Coincident", 44, 2, 45, 1),
    Sketcher.Constraint("Coincident", 45, 2, 46, 1),
    Sketcher.Constraint("Coincident", 46, 2, 47, 1),
    Sketcher.Constraint("Coincident", 47, 2, 44, 1),
    Sketcher.Constraint("Vertical", 0),
    Sketcher.Constraint("Horizontal", 1),
    Sketcher.Constraint("Vertical", 2),
    Sketcher.Constraint("Horizontal", 3),
    Sketcher.Constraint("Vertical", 4),
    Sketcher.Constraint("Horizontal", 5),
    Sketcher.Constraint("Vertical", 6),
    Sketcher.Constraint("Horizontal", 7),
    Sketcher.Constraint("Vertical", 8),
    Sketcher.Constraint("Horizontal", 9),
    Sketcher.Constraint("Vertical", 10),
    Sketcher.Constraint("Horizontal", 11),
    Sketcher.Constraint("Vertical", 12),
    Sketcher.Constraint("Horizontal", 13),
    Sketcher.Constraint("Vertical", 14),
    Sketcher.Constraint("Horizontal", 15),
    Sketcher.Constraint("Vertical", 16),
    Sketcher.Constraint("Horizontal", 17),
    Sketcher.Constraint("Vertical", 18),
    Sketcher.Constraint("Horizontal", 19),
    Sketcher.Constraint("Vertical", 20),
    Sketcher.Constraint("Horizontal", 21),
    Sketcher.Constraint("Vertical", 22),
    Sketcher.Constraint("Horizontal", 23),
    Sketcher.Constraint("Vertical", 24),
    Sketcher.Constraint("Horizontal", 25),
    Sketcher.Constraint("Vertical", 26),
    Sketcher.Constraint("Horizontal", 27),
    Sketcher.Constraint("Vertical", 28),
    Sketcher.Constraint("Horizontal", 29),
    Sketcher.Constraint("Vertical", 30),
    Sketcher.Constraint("Horizontal", 31),
    Sketcher.Constraint("Vertical", 32),
    Sketcher.Constraint("Horizontal", 33),
    Sketcher.Constraint("Vertical", 34),
    Sketcher.Constraint("Horizontal", 35),
    Sketcher.Constraint("Vertical", 36),
    Sketcher.Constraint("Horizontal", 37),
    Sketcher.Constraint("Vertical", 38),
    Sketcher.Constraint("Horizontal", 39),
    Sketcher.Constraint("Vertical", 40),
    Sketcher.Constraint("Horizontal", 41),
    Sketcher.Constraint("Vertical", 42),
    Sketcher.Constraint("Horizontal", 43),
    Sketcher.Constraint("Vertical", 44),
    Sketcher.Constraint("Horizontal", 45),
    Sketcher.Constraint("Vertical", 46),
    Sketcher.Constraint("Horizontal", 47),
    Sketcher.Constraint("Horizontal", 1, 2, 4, 2),
    Sketcher.Constraint("Horizontal", 3, 2, 6, 2),
    Sketcher.Constraint("Horizontal", 9, 2, 28, 2),
    Sketcher.Constraint("Horizontal", 11, 2, 30, 2),
    Sketcher.Constraint("Horizontal", 13, 2, 32, 2),
    Sketcher.Constraint("Horizontal", 15, 2, 34, 2),
    Sketcher.Constraint("Horizontal", 17, 2, 36, 2),
    Sketcher.Constraint("Horizontal", 19, 2, 38, 2),
    Sketcher.Constraint("Horizontal", 21, 2, 40, 2),
    Sketcher.Constraint("Horizontal", 23, 2, 42, 2),
    Sketcher.Constraint("Horizontal", 25, 2, 44, 2),
    Sketcher.Constraint("Horizontal", 27, 2, 46, 2),
    Sketcher.Constraint("Vertical", 3, 2, 8, 2),
    Sketcher.Constraint("Vertical", 2, 2, 9, 2),
    Sketcher.Constraint("Vertical", 11, 2, 12, 2),
    Sketcher.Constraint("Vertical", 10, 2, 13, 2),
    Sketcher.Constraint("Vertical", 15, 2, 16, 2),
    Sketcher.Constraint("Vertical", 14, 2, 17, 2),
    Sketcher.Constraint("Vertical", 19, 2, 20, 2),
    Sketcher.Constraint("Vertical", 18, 2, 21, 2),
    Sketcher.Constraint("Vertical", 23, 2, 24, 2),
    Sketcher.Constraint("Vertical", 22, 2, 25, 2),
    Sketcher.Constraint("Vertical", 7, 2, 28, 2),
    Sketcher.Constraint("Vertical", 6, 2, 29, 2),
    Sketcher.Constraint("Vertical", 31, 2, 32, 2),
    Sketcher.Constraint("Vertical", 30, 2, 33, 2),
    Sketcher.Constraint("Vertical", 35, 2, 36, 2),
    Sketcher.Constraint("Vertical", 34, 2, 37, 2),
    Sketcher.Constraint("Vertical", 39, 2, 40, 2),
    Sketcher.Constraint("Vertical", 38, 2, 41, 2),
    Sketcher.Constraint("Vertical", 43, 2, 44, 2),
    Sketcher.Constraint("Vertical", 42, 2, 45, 2),
    Sketcher.Constraint("Equal", 3, 5),
    Sketcher.Constraint("Equal", 6, 8),
    Sketcher.Constraint("Equal", 10, 12),
    Sketcher.Constraint("Equal", 14, 16),
    Sketcher.Constraint("Equal", 18, 20),
    Sketcher.Constraint("Equal", 22, 24),
    Sketcher.Constraint("DistanceX", 1, 2, 1, 1, Q("4.2 mm")),
    Sketcher.Constraint("DistanceY", 0, 2, 0, 1, Q("20.2 mm")),
    Sketcher.Constraint("DistanceY", 0, 2, 8, 2, Q("140 mm")),
    Sketcher.Constraint("DistanceY", 8, 2, 12, 2, Q("140 mm")),
    Sketcher.Constraint("DistanceY", 12, 2, 16, 2, Q("140 mm")),
    Sketcher.Constraint("DistanceY", 16, 2, 20, 2, Q("140 mm")),
    Sketcher.Constraint("DistanceY", 20, 2, 24, 2, Q("140 mm")),
    Sketcher.Constraint("DistanceX", -1, 1, 0, 2, Q("613.6 mm")),
    Sketcher.Constraint("DistanceY", -1, 1, 0, 2, Q("9.9 mm")),
    Sketcher.Constraint("DistanceX", -1, 1, 4, 2, Q("928.1 mm")),
])
pocket6 = body.newObject("PartDesign::Pocket", "Pocket005")
pocket6.Profile = sketch7
pocket6.Type = "ThroughAll"
pocket6.Midplane = True

sketch8 = body.newObject("Sketcher::SketchObject", "Sketch007")
sketch8.AttachmentSupport = (doc.getObject("YZ_Plane"), [""])
sketch8.MapMode = "FlatFace"
sketch8.AttachmentOffset = App.Placement(App.Vector(0, 0, 994), App.Rotation())
sketch8.addGeometry([
    Part.LineSegment(App.Vector(740, 26, 0), App.Vector(0, 26, 0)),
    Part.LineSegment(App.Vector(0, 26, 0), App.Vector(0, 0, 0)),
    Part.LineSegment(App.Vector(0, 0, 0), App.Vector(740, 0, 0)),
    Part.LineSegment(App.Vector(740, 0, 0), App.Vector(740, 26, 0)),
], False)
sketch8.addConstraint([
    Sketcher.Constraint("Coincident", 0, 2, 1, 1),
    Sketcher.Constraint("Coincident", 1, 2, 2, 1),
    Sketcher.Constraint("Coincident", 2, 2, 3, 1),
    Sketcher.Constraint("Coincident", 3, 2, 0, 1),
    Sketcher.Constraint("Horizontal", 0),
    Sketcher.Constraint("Vertical", 1),
    Sketcher.Constraint("Horizontal", 2),
    Sketcher.Constraint("Vertical", 3),
    Sketcher.Constraint("Coincident", 1, 2, -1, 1),
    Sketcher.Constraint("DistanceX", 0, 2, 0, 1, Q("740 mm")),
    Sketcher.Constraint("DistanceY", 1, 2, 1, 1, Q("26.45 mm")),
])
pad2 = body.newObject("PartDesign::Pad", "Pad001")
pad2.Profile = sketch8
pad2.Length = 4

sketch9 = body.newObject("Sketcher::SketchObject", "Sketch008")
sketch9.AttachmentSupport = (doc.getObject("YZ_Plane"), [""])
sketch9.MapMode = "FlatFace"
sketch9.AttachmentOffset = App.Placement(App.Vector(0, 0, 998), App.Rotation())
sketch9.addGeometry([
    Part.LineSegment(App.Vector(150, 17, 0), App.Vector(140, 17, 0)),
    Part.LineSegment(App.Vector(140, 17, 0), App.Vector(140, 11, 0)),
    Part.LineSegment(App.Vector(140, 11, 0), App.Vector(150, 11, 0)),
    Part.LineSegment(App.Vector(150, 11, 0), App.Vector(150, 17, 0)),
    Part.LineSegment(App.Vector(168, 17, 0), App.Vector(157, 17, 0)),
    Part.LineSegment(App.Vector(157, 17, 0), App.Vector(157, 11, 0)),
    Part.LineSegment(App.Vector(157, 11, 0), App.Vector(168, 11, 0)),
    Part.LineSegment(App.Vector(168, 11, 0), App.Vector(168, 17, 0)),
    Part.LineSegment(App.Vector(583, 17, 0), App.Vector(572, 17, 0)),
    Part.LineSegment(App.Vector(572, 17, 0), App.Vector(572, 11, 0)),
    Part.LineSegment(App.Vector(572, 11, 0), App.Vector(583, 11, 0)),
    Part.LineSegment(App.Vector(583, 11, 0), App.Vector(583, 17, 0)),
    Part.LineSegment(App.Vector(600, 17, 0), App.Vector(590, 17, 0)),
    Part.LineSegment(App.Vector(590, 17, 0), App.Vector(590, 11, 0)),
    Part.LineSegment(App.Vector(590, 11, 0), App.Vector(600, 11, 0)),
    Part.LineSegment(App.Vector(600, 11, 0), App.Vector(600, 17, 0)),
], False)
sketch9.addConstraint([
    Sketcher.Constraint("Coincident", 0, 2, 1, 1),
    Sketcher.Constraint("Coincident", 1, 2, 2, 1),
    Sketcher.Constraint("Coincident", 2, 2, 3, 1),
    Sketcher.Constraint("Coincident", 3, 2, 0, 1),
    Sketcher.Constraint("Coincident", 4, 2, 5, 1),
    Sketcher.Constraint("Coincident", 5, 2, 6, 1),
    Sketcher.Constraint("Coincident", 6, 2, 7, 1),
    Sketcher.Constraint("Coincident", 7, 2, 4, 1),
    Sketcher.Constraint("Coincident", 8, 2, 9, 1),
    Sketcher.Constraint("Coincident", 9, 2, 10, 1),
    Sketcher.Constraint("Coincident", 10, 2, 11, 1),
    Sketcher.Constraint("Coincident", 11, 2, 8, 1),
    Sketcher.Constraint("Coincident", 12, 2, 13, 1),
    Sketcher.Constraint("Coincident", 13, 2, 14, 1),
    Sketcher.Constraint("Coincident", 14, 2, 15, 1),
    Sketcher.Constraint("Coincident", 15, 2, 12, 1),
    Sketcher.Constraint("Horizontal", 0),
    Sketcher.Constraint("Vertical", 1),
    Sketcher.Constraint("Horizontal", 2),
    Sketcher.Constraint("Vertical", 3),
    Sketcher.Constraint("Horizontal", 4),
    Sketcher.Constraint("Vertical", 5),
    Sketcher.Constraint("Horizontal", 6),
    Sketcher.Constraint("Vertical", 7),
    Sketcher.Constraint("Horizontal", 8),
    Sketcher.Constraint("Vertical", 9),
    Sketcher.Constraint("Horizontal", 10),
    Sketcher.Constraint("Vertical", 11),
    Sketcher.Constraint("Horizontal", 12),
    Sketcher.Constraint("Vertical", 13),
    Sketcher.Constraint("Horizontal", 14),
    Sketcher.Constraint("Vertical", 15),
    Sketcher.Constraint("Horizontal", 3, 2, 4, 2),
    Sketcher.Constraint("Horizontal", 2, 2, 5, 2),
    Sketcher.Constraint("Horizontal", 7, 2, 8, 2),
    Sketcher.Constraint("Horizontal", 6, 2, 9, 2),
    Sketcher.Constraint("Horizontal", 11, 2, 12, 2),
    Sketcher.Constraint("Horizontal", 10, 2, 13, 2),
    Sketcher.Constraint("Equal", 2, 4),
    Sketcher.Constraint("Equal", 6, 8),
    Sketcher.Constraint("Equal", 10, 12),
    Sketcher.Constraint("DistanceX", 0, 2, 0, 1, Q("10.5 mm")),
    Sketcher.Constraint("DistanceY", 1, 2, 1, 1, Q("5.8 mm")),
    Sketcher.Constraint("DistanceX", -1, 1, 0, 2, Q("140 mm")),
    Sketcher.Constraint("DistanceX", -1, 1, 4, 2, Q("157 mm")),
    Sketcher.Constraint("DistanceX", -1, 1, 10, 2, Q("583 mm")),
    Sketcher.Constraint("DistanceX", -1, 1, 14, 2, Q("600 mm")),
    Sketcher.Constraint("DistanceY", -1, 1, 0, 2, Q("16.88 mm")),
])
pocket7 = body.newObject("PartDesign::Pocket", "Pocket006")
pocket7.Profile = sketch9
pocket7.Type = "ThroughAll"

sketch10 = body.newObject("Sketcher::SketchObject", "Sketch009")
sketch10.AttachmentSupport = (doc.getObject("YZ_Plane"), [""])
sketch10.MapMode = "FlatFace"
sketch10.AttachmentOffset = App.Placement(App.Vector(0, 0, 998), App.Rotation())
sketch10.addGeometry([
    Part.Circle(App.Vector(10, 14, 0), App.Vector(0, 0, 1), 2.6),
    Part.Circle(App.Vector(298, 14, 0), App.Vector(0, 0, 1), 2.6),
    Part.Circle(App.Vector(442, 14, 0), App.Vector(0, 0, 1), 2.6),
    Part.Circle(App.Vector(730, 14, 0), App.Vector(0, 0, 1), 2.6),
], False)
sketch10.addConstraint([
    Sketcher.Constraint("Equal", 0, 1),
    Sketcher.Constraint("Equal", 1, 2),
    Sketcher.Constraint("Equal", 2, 3),
    Sketcher.Constraint("Horizontal", 0, 3, 1, 3),
    Sketcher.Constraint("Horizontal", 1, 3, 2, 3),
    Sketcher.Constraint("Horizontal", 2, 3, 3, 3),
    Sketcher.Constraint("Diameter", 0, Q("5.2 mm")),
    Sketcher.Constraint("DistanceX", -1, 1, 0, 3, Q("10 mm")),
    Sketcher.Constraint("DistanceY", -1, 1, 0, 3, Q("14 mm")),
    Sketcher.Constraint("DistanceX", -1, 1, 1, 3, Q("298 mm")),
    Sketcher.Constraint("DistanceX", -1, 1, 2, 3, Q("442 mm")),
    Sketcher.Constraint("DistanceX", -1, 1, 3, 3, Q("730 mm")),
])
pocket8 = body.newObject("PartDesign::Pocket", "Pocket007")
pocket8.Profile = sketch10
pocket8.Type = "ThroughAll"
doc.recompute()

fillet = body.newObject("PartDesign::Fillet", "Fillet")
fillet.Base = (pocket8, edges_at(pocket8, [(994, 370, 4)]))
fillet.Radius = 1.5
doc.recompute()

fillet2 = body.newObject("PartDesign::Fillet", "Fillet001")
fillet2.Base = (fillet, edges_at(fillet, [(998, 370, 0)]))
fillet2.Radius = 5.5
doc.recompute()

fillet3 = body.newObject("PartDesign::Fillet", "Fillet002")
fillet3.Base = (fillet2, edges_at(fillet2, [
    (689.6, 40.15, 2),
    (770.4, 70.5, 2),
    (770.4, 86.4, 2),
    (729.818, 86.4, 2),
    (689.6, 699.85, 2),
    (729.818, 653.6, 2),
    (770.4, 653.6, 2),
    (770.4, 669.5, 2),
]))
fillet3.Radius = 2.5

doc.recompute()
